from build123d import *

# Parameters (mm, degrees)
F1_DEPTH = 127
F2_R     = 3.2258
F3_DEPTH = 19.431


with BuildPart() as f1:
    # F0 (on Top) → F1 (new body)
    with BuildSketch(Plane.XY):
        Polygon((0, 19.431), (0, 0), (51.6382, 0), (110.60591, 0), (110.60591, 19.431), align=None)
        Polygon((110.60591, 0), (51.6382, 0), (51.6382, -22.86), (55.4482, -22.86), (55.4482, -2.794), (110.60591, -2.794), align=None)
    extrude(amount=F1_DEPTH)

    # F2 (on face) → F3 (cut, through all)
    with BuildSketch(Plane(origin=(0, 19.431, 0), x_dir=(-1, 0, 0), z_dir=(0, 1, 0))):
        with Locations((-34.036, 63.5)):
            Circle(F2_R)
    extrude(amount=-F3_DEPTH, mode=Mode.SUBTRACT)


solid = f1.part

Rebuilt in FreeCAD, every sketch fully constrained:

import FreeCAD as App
import Part
import Sketcher

V = App.Vector
Q = App.Units.Quantity


def add_polygon(sketch, points):
    """Adds a closed chain of lines whose ends are joined by coincident constraints."""
    first, n = sketch.GeometryCount, len(points)
    for a, b in zip(points, points[1:] + points[:1]):
        sketch.addGeometry(Part.LineSegment(App.Vector(*a, 0), App.Vector(*b, 0)), False)
    for i in range(n):
        sketch.addConstraint(Sketcher.Constraint("Coincident", first + i, 2, first + (i + 1) % n, 1))

doc = App.newDocument("Part")
body = doc.addObject("PartDesign::Body", "Body")

sketch1 = body.newObject("Sketcher::SketchObject", "Sketch")
sketch1.AttachmentSupport = (doc.getObject("XY_Plane"), [""])
sketch1.MapMode = "FlatFace"
add_polygon(sketch1, [(0, 19.4), (0, 0), (51.6, 0), (51.6, -22.9), (55.4, -22.9), (55.4, -2.8), (110.6, -2.8), (110.6, 19.4)])
sketch1.addConstraint(Sketcher.Constraint("Vertical", 0))
sketch1.addConstraint(Sketcher.Constraint("Horizontal", 1))
sketch1.addConstraint(Sketcher.Constraint("Vertical", 2))
sketch1.addConstraint(Sketcher.Constraint("Horizontal", 3))
sketch1.addConstraint(Sketcher.Constraint("Vertical", 4))
sketch1.addConstraint(Sketcher.Constraint("Horizontal", 5))
sketch1.addConstraint(Sketcher.Constraint("Vertical", 6))
sketch1.addConstraint(Sketcher.Constraint("Horizontal", 7))
sketch1.addConstraint(Sketcher.Constraint("Coincident", 0, 2, -1, 1))
sketch1.addConstraint(Sketcher.Constraint("DistanceY", 2, 2, 2, 1, Q("0.9 in")))
sketch1.addConstraint(Sketcher.Constraint("DistanceX", 3, 1, 3, 2, Q("0.15 in")))
sketch1.addConstraint(Sketcher.Constraint("DistanceY", 4, 1, 4, 2, Q("0.79 in")))
sketch1.addConstraint(Sketcher.Constraint("DistanceX", 1, 1, 1, 2, Q("2.033 in")))
sketch1.addConstraint(Sketcher.Constraint("DistanceY", 0, 2, 0, 1, Q("0.765 in")))
sketch1.addConstraint(Sketcher.Constraint("DistanceX", 5, 1, 5, 2, Q("55.15771 mm")))
pad1 = body.newObject("PartDesign::Pad", "Pad")
pad1.Profile = sketch1
pad1.Length = Q("5 in")

sketch2 = body.newObject("Sketcher::SketchObject", "Sketch001")
sketch2.AttachmentSupport = (doc.getObject("XZ_Plane"), [""])
sketch2.MapMode = "FlatFace"
sketch2.AttachmentOffset = App.Placement(V(0, 0, -0.765 * 25.4), App.Rotation())
sketch2.addGeometry(Part.Circle(V(34, 63.5, 0), V(0, 0, 1), 3.2), False)
sketch2.addConstraint(Sketcher.Constraint("Diameter", 0, Q("0.254 in")))
sketch2.addConstraint(Sketcher.Constraint("DistanceY", -1, 1, 0, 3, Q("2.5 in")))
sketch2.addConstraint(Sketcher.Constraint("DistanceX", -1, 1, 0, 3, Q("1.34 in")))
pocket1 = body.newObject("PartDesign::Pocket", "Pocket")
pocket1.Profile = sketch2
pocket1.Type = "ThroughAll"
pocket1.Reversed = True

doc.recompute()
